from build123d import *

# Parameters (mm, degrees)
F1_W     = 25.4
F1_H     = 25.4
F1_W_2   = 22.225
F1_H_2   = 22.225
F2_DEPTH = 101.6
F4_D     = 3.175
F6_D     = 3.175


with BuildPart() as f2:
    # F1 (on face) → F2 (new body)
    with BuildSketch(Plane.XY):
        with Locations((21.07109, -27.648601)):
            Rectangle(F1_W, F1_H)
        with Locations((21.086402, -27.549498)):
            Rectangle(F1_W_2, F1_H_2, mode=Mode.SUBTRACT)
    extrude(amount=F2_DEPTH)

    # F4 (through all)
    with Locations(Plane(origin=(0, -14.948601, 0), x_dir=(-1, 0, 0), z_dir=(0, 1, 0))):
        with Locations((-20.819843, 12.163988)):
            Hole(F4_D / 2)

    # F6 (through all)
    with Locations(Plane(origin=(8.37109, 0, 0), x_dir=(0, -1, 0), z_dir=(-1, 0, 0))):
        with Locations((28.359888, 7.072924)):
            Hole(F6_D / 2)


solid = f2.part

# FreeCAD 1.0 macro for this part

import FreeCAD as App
import Part
import Sketcher
from FreeCAD import Vector
Q = App.Units.Quantity


def add_polygon(sketch, points):
    """Adds a closed chain of lines whose ends are joined by coincident constraints."""
    first, n = sketch.GeometryCount, len(points)
    for a, b in zip(points, points[1:] + points[:1]):
        sketch.addGeometry(Part.LineSegment(App.Vector(*a, 0), App.Vector(*b, 0)), False)
    for i in range(n):
        sketch.addConstraint(Sketcher.Constraint("Coincident", first + i, 2, first + (i + 1) % n, 1))

doc = App.newDocument("Part")
body = doc.addObject("PartDesign::Body", "Body")

# Sketch on XY plane
sketch1 = body.newObject("Sketcher::SketchObject", "Sketch")
sketch1.AttachmentSupport = (doc.getObject("XY_Plane"), [""])
sketch1.MapMode = "FlatFace"
add_polygon(sketch1, [(8, -15), (8, -40), (34, -40), (34, -15)])  # lines 0-3
add_polygon(sketch1, [(32, -39), (10, -39), (10, -16), (32, -16)])  # lines 4-7
sketch1.addConstraint([
    Sketcher.Constraint("Vertical", 0),
    Sketcher.Constraint("Horizontal", 1),
    Sketcher.Constraint("Vertical", 2),
    Sketcher.Constraint("Horizontal", 3),
    Sketcher.Constraint("Horizontal", 4),
    Sketcher.Constraint("Vertical", 5),
    Sketcher.Constraint("Horizontal", 6),
    Sketcher.Constraint("Vertical", 7),
    Sketcher.Constraint("Equal", 3, 0),
    Sketcher.Constraint("Equal", 6, 5),
    Sketcher.Constraint("DistanceX", 1, 1, 1, 2, Q("1 in")),
    Sketcher.Constraint("DistanceX", 4, 2, 4, 1, Q("0.875 in")),
    Sketcher.Constraint("DistanceY", 0, 2, -1, 1, 40.348601),
    Sketcher.Constraint("DistanceX", -1, 1, 6, 2, 32.198902),
    Sketcher.Constraint("DistanceX", -1, 1, 0, 2, 8.37109),
    Sketcher.Constraint("DistanceY", 4, 2, -1, 1, 38.661998),
])
pad1 = body.newObject("PartDesign::Pad", "Pad")
pad1.Profile = sketch1
pad1.Length = Q("4 in")

# Sketch on XZ plane
sketch2 = body.newObject("Sketcher::SketchObject", "Sketch001")
sketch2.AttachmentSupport = (doc.getObject("XZ_Plane"), [""])
sketch2.MapMode = "FlatFace"
sketch2.AttachmentOffset = App.Placement(Vector(0, 0, 14.948601), App.Rotation())
sketch2.addGeometry(Part.Circle(Vector(20.8, 12.2, 0), Vector(0, 0, 1), 1.6), False)
sketch2.addConstraint([
    Sketcher.Constraint("Diameter", 0, Q("0.125 in")),
    Sketcher.Constraint("DistanceX", -1, 1, 0, 3, 20.819843),
    Sketcher.Constraint("DistanceY", -1, 1, 0, 3, 12.163988),
])
doc.recompute()
hole = body.newObject("PartDesign::Hole", "Hole")
hole.Profile = sketch2
hole.ThreadType = "None"
hole.Diameter = Q("0.125 in")
hole.DepthType = "ThroughAll"
hole.Reversed = True

# Sketch on YZ plane
sketch3 = body.newObject("Sketcher::SketchObject", "Sketch002")
sketch3.AttachmentSupport = (doc.getObject("YZ_Plane"), [""])
sketch3.MapMode = "FlatFace"
sketch3.AttachmentOffset = App.Placement(Vector(0, 0, 8.37109), App.Rotation())
sketch3.addGeometry(Part.Circle(Vector(-28.4, 7.1, 0), Vector(0, 0, 1), 1.6), False)
sketch3.addConstraint([
    Sketcher.Constraint("Diameter", 0, Q("0.125 in")),
    Sketcher.Constraint("DistanceX", 0, 3, -1, 1, 28.359888),
    Sketcher.Constraint("DistanceY", -1, 1, 0, 3, 7.072924),
])
doc.recompute()
hole2 = body.newObject("PartDesign::Hole", "Hole001")
hole2.Profile = sketch3
hole2.ThreadType = "None"
hole2.Diameter = Q("0.125 in")
hole2.DepthType = "ThroughAll"
hole2.Reversed = True

doc.recompute()
